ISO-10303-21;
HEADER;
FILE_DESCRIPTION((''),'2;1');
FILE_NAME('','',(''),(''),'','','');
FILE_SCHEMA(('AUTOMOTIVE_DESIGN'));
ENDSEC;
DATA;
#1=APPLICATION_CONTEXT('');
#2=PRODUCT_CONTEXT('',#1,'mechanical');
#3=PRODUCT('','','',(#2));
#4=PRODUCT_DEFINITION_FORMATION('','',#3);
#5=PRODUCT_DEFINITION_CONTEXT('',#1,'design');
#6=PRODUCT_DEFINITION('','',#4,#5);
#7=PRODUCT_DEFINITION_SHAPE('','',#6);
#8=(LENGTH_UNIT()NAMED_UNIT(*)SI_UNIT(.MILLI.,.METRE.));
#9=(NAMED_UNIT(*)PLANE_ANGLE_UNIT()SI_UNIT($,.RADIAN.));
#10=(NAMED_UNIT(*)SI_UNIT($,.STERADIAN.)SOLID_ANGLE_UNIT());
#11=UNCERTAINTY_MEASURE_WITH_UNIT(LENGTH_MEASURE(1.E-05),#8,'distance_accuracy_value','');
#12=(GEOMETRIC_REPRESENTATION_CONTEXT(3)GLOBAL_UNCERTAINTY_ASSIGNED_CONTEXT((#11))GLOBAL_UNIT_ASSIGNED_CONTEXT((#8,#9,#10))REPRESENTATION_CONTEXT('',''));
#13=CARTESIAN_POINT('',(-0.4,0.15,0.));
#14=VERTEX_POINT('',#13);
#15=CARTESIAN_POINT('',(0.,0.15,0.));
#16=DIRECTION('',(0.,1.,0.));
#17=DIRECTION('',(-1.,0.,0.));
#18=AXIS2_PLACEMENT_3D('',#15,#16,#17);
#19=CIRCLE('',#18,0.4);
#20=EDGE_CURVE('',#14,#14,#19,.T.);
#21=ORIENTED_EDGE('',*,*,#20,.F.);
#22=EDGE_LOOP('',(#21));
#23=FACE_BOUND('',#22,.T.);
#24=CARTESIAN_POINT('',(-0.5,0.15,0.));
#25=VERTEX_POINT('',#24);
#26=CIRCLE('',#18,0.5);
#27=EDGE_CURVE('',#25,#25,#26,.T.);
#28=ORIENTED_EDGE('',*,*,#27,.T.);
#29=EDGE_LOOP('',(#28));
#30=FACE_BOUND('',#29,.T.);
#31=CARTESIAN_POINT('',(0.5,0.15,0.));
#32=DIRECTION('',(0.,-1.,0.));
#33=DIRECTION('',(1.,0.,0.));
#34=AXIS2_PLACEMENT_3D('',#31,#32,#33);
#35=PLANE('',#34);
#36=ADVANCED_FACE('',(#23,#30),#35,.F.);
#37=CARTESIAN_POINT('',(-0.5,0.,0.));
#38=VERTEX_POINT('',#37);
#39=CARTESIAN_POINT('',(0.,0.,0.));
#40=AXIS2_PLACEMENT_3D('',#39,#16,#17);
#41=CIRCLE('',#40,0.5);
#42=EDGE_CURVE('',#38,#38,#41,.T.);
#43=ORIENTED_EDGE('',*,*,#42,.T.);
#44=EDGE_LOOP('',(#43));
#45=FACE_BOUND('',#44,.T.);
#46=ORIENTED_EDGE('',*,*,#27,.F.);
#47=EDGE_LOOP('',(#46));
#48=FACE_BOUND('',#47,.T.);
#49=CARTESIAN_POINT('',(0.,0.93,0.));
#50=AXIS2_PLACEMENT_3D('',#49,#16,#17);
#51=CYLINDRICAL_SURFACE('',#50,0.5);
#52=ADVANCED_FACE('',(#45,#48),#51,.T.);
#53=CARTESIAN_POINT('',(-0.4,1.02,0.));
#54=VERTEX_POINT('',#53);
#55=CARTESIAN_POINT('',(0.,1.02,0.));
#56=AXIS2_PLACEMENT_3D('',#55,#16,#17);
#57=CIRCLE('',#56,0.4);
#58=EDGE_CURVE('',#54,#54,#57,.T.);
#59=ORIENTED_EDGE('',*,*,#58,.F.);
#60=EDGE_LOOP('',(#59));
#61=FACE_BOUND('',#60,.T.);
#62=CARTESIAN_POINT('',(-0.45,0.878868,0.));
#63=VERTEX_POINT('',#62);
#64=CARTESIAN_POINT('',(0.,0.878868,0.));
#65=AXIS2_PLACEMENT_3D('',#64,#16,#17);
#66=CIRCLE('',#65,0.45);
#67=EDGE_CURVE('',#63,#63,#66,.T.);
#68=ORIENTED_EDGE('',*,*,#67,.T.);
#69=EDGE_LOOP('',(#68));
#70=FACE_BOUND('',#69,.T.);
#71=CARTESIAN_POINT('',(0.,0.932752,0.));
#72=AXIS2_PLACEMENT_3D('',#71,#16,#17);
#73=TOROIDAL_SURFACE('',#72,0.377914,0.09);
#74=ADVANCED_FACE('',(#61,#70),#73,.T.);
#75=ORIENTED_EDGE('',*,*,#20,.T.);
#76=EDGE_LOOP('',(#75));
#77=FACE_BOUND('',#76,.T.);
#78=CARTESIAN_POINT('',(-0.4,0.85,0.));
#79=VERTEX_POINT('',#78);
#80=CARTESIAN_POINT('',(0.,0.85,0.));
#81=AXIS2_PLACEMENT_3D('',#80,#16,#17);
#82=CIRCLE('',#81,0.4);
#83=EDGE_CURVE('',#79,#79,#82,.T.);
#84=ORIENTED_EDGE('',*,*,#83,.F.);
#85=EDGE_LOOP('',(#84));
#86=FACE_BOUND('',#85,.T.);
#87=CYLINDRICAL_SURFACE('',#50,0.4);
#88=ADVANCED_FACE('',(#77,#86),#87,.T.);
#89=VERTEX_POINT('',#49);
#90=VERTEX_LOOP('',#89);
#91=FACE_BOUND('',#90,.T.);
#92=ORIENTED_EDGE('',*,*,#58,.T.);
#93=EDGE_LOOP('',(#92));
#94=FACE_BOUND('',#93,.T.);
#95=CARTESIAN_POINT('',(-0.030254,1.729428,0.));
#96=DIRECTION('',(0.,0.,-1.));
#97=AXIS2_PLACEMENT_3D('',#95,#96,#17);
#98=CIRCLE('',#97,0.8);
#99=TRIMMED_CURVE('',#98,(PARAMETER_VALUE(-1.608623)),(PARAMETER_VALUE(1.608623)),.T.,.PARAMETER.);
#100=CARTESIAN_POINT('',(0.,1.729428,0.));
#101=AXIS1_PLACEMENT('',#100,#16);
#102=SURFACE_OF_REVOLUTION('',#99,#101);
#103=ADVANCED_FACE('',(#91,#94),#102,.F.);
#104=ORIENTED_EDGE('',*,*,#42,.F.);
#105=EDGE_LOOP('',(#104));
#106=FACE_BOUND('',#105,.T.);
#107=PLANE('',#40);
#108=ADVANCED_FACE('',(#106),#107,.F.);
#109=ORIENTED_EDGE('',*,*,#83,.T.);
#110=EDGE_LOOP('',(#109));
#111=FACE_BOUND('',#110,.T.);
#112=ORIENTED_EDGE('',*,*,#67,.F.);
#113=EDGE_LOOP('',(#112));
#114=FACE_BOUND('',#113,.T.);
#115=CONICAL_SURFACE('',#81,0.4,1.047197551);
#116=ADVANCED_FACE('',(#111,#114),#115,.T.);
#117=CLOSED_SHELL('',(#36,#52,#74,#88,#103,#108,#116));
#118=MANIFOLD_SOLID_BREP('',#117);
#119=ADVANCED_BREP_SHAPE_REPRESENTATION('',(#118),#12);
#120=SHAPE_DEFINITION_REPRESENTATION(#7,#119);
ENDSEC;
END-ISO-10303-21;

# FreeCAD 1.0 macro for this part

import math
import FreeCAD as App
import Part
import Sketcher
Q = App.Units.Quantity

doc = App.newDocument("Part")
body = doc.addObject("PartDesign::Body", "Body")

# Sketch on XY plane
sketch1 = doc.addObject("Sketcher::SketchObject", "Sketch")
body.addObject(sketch1)
sketch1.AttachmentSupport = (doc.XY_Plane, [""])
sketch1.MapMode = "FlatFace"
sketch1.addGeometry(Part.LineSegment(App.Vector(0, 0.93, 0), App.Vector(0, 0, 0)), False)
sketch1.addGeometry(Part.LineSegment(App.Vector(0, 0, 0), App.Vector(0.5, 0, 0)), False)
sketch1.addGeometry(Part.LineSegment(App.Vector(0.5, 0, 0), App.Vector(0.5, 0.15, 0)), False)
sketch1.addGeometry(Part.LineSegment(App.Vector(0.5, 0.15, 0), App.Vector(0.4, 0.15, 0)), False)
sketch1.addGeometry(Part.LineSegment(App.Vector(0.4, 0.15, 0), App.Vector(0.4, 0.85, 0)), False)
sketch1.addGeometry(Part.LineSegment(App.Vector(0.4, 0.85, 0), App.Vector(0.45, 0.88, 0)), False)
sketch1.addGeometry(Part.ArcOfCircle(Part.Circle(App.Vector(0.38, 0.93, 0), App.Vector(0, 0, 1), 0.09), math.radians(-37), math.radians(76)), False)
sketch1.addGeometry(Part.ArcOfCircle(Part.Circle(App.Vector(0.03, 1.73, 0), App.Vector(0, 0, 1), 0.8), math.radians(-92), math.radians(-62)), False)
sketch1.addConstraint(Sketcher.Constraint("Coincident", 0, 2, 1, 1))
sketch1.addConstraint(Sketcher.Constraint("Coincident", 1, 2, 2, 1))
sketch1.addConstraint(Sketcher.Constraint("Coincident", 2, 2, 3, 1))
sketch1.addConstraint(Sketcher.Constraint("Coincident", 3, 2, 4, 1))
sketch1.addConstraint(Sketcher.Constraint("Coincident", 4, 2, 5, 1))
sketch1.addConstraint(Sketcher.Constraint("Coincident", 5, 2, 6, 1))
sketch1.addConstraint(Sketcher.Constraint("Coincident", 6, 2, 7, 2))
sketch1.addConstraint(Sketcher.Constraint("Coincident", 7, 1, 0, 1))
sketch1.addConstraint(Sketcher.Constraint("Vertical", 0))
sketch1.addConstraint(Sketcher.Constraint("Horizontal", 1))
sketch1.addConstraint(Sketcher.Constraint("Vertical", 2))
sketch1.addConstraint(Sketcher.Constraint("Horizontal", 3))
sketch1.addConstraint(Sketcher.Constraint("Vertical", 4))
sketch1.addConstraint(Sketcher.Constraint("Coincident", 0, 2, -1, 1))
sketch1.addConstraint(Sketcher.Constraint("Vertical", 4, 2, 6, 2))
sketch1.addConstraint(Sketcher.Constraint("Radius", 7, 0.8))
sketch1.addConstraint(Sketcher.Constraint("Angle", 5, Q("30 deg")))
sketch1.addConstraint(Sketcher.Constraint("Radius", 6, 0.09))
sketch1.addConstraint(Sketcher.Constraint("DistanceX", 1, 1, 1, 2, 0.5))
sketch1.addConstraint(Sketcher.Constraint("DistanceX", 3, 2, 3, 1, 0.1))
sketch1.addConstraint(Sketcher.Constraint("DistanceY", 4, 1, 4, 2, 0.7))
sketch1.addConstraint(Sketcher.Constraint("DistanceY", 0, 2, 0, 1, 0.93))
sketch1.addConstraint(Sketcher.Constraint("DistanceY", 2, 1, 2, 2, 0.15))
sketch1.addConstraint(Sketcher.Constraint("DistanceX", -1, 1, 5, 2, 0.45))
sketch1.addConstraint(Sketcher.Constraint("DistanceY", -1, 1, 6, 2, 1.02))
revolution = doc.addObject("PartDesign::Revolution", "Revolution")
body.addObject(revolution)
revolution.Profile = sketch1
revolution.ReferenceAxis = (sketch1, ["V_Axis"])
revolution.Angle = 360

doc.recompute()
